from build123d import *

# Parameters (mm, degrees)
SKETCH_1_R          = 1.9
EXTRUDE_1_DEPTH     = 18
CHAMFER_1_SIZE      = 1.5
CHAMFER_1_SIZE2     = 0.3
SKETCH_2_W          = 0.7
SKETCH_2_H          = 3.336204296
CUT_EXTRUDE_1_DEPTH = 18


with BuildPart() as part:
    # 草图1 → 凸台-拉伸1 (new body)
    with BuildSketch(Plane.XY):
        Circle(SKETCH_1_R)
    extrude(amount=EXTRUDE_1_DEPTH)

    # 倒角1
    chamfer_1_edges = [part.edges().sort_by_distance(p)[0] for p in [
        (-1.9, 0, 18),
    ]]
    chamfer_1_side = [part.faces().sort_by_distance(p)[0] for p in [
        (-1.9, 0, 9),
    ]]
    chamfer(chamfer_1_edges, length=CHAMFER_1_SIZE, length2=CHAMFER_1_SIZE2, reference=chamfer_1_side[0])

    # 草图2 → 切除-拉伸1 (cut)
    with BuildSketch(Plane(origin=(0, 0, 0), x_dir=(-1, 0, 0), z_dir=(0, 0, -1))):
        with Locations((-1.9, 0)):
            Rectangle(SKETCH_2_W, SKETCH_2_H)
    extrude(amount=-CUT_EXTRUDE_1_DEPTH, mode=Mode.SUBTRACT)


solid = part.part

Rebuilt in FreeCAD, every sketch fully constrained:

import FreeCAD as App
import Part
import Sketcher
from FreeCAD import Vector


def edges_at(feature, points):
    """Names of the edges that pass closest to the given points."""
    edges = feature.Shape.Edges
    near = lambda p: min(range(len(edges)), key=lambda i: edges[i].distToShape(Part.Vertex(*p))[0])
    return sorted({f"Edge{near(p) + 1}" for p in points})

doc = App.newDocument("Part")
body = doc.addObject("PartDesign::Body", "Body")

sketch1 = body.newObject("Sketcher::SketchObject", "Sketch")
sketch1.AttachmentSupport = (doc.getObject("XY_Plane"), [""])
sketch1.MapMode = "FlatFace"
sketch1.addGeometry(Part.Circle(Vector(0, 0, 0), Vector(0, 0, 1), 1.9), False)
sketch1.addConstraint([
    Sketcher.Constraint("Coincident", 0, 3, -1, 1),
    Sketcher.Constraint("Diameter", 0, 3.8),
])
pad1 = body.newObject("PartDesign::Pad", "Pad")
pad1.Profile = sketch1
pad1.Length = 18
doc.recompute()

chamfer = body.newObject("PartDesign::Chamfer", "Chamfer")
chamfer.Base = (pad1, edges_at(pad1, [(-1.9, 0, 18)]))
chamfer.ChamferType = "Two distances"
chamfer.Size = 1.5
chamfer.Size2 = 0.3

sketch2 = body.newObject("Sketcher::SketchObject", "Sketch001")
sketch2.AttachmentSupport = (doc.getObject("XY_Plane"), [""])
sketch2.MapMode = "FlatFace"
sketch2.addGeometry([
    Part.LineSegment(Vector(2.2, 1.7, 0), Vector(2.2, -1.7, 0)),
    Part.LineSegment(Vector(2.2, -1.7, 0), Vector(1.6, -1.7, 0)),
    Part.LineSegment(Vector(1.6, -1.7, 0), Vector(1.6, 1.7, 0)),
    Part.LineSegment(Vector(1.6, 1.7, 0), Vector(2.2, 1.7, 0)),
], False)
sketch2.addConstraint([
    Sketcher.Constraint("Coincident", 0, 2, 1, 1),
    Sketcher.Constraint("Coincident", 1, 2, 2, 1),
    Sketcher.Constraint("Coincident", 2, 2, 3, 1),
    Sketcher.Constraint("Coincident", 3, 2, 0, 1),
    Sketcher.Constraint("Vertical", 0),
    Sketcher.Constraint("Horizontal", 1),
    Sketcher.Constraint("Vertical", 2),
    Sketcher.Constraint("Horizontal", 3),
    Sketcher.Constraint("DistanceX", 1, 2, 1, 1, 0.7),
    Sketcher.Constraint("DistanceX", -1, 1, 0, 2, 2.25),
    Sketcher.Constraint("DistanceY", 0, 2, 0, 1, 3.336204),
    Sketcher.Constraint("DistanceY", 0, 2, -1, 1, 1.668102),
])
pocket1 = body.newObject("PartDesign::Pocket", "Pocket")
pocket1.Profile = sketch2
pocket1.Length = 18
pocket1.Reversed = True

doc.recompute()
